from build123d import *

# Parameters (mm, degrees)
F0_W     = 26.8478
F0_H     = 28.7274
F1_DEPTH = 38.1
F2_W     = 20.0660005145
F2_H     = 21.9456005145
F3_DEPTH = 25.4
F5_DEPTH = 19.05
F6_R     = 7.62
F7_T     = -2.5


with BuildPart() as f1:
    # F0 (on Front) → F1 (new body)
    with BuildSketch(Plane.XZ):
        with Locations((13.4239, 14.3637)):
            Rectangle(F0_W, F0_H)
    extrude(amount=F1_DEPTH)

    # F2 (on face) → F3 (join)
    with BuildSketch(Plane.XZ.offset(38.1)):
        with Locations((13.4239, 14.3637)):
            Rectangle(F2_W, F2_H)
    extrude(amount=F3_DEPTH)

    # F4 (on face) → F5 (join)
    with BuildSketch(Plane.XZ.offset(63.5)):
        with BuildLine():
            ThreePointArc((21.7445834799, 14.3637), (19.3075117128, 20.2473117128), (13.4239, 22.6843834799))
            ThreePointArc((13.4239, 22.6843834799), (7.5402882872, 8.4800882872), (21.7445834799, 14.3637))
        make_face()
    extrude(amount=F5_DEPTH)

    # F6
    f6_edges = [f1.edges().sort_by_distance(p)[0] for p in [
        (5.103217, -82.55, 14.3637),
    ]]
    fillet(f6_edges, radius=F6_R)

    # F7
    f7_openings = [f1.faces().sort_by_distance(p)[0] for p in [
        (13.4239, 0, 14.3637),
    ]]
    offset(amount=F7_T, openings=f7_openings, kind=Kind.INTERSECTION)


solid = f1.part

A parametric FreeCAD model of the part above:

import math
import FreeCAD as App
import Part
import Sketcher
Q = App.Units.Quantity


def edges_at(feature, points):
    """Names of the edges that pass closest to the given points."""
    edges = feature.Shape.Edges
    near = lambda p: min(range(len(edges)), key=lambda i: edges[i].distToShape(Part.Vertex(*p))[0])
    return sorted({f"Edge{near(p) + 1}" for p in points})


def faces_at(feature, points):
    """Names of the faces that lie closest to the given points."""
    faces = feature.Shape.Faces
    near = lambda p: min(range(len(faces)), key=lambda i: faces[i].distToShape(Part.Vertex(*p))[0])
    return sorted({f"Face{near(p) + 1}" for p in points})

doc = App.newDocument("Part")
body = doc.addObject("PartDesign::Body", "Body")

# Sketch on XZ plane
sketch1 = doc.addObject("Sketcher::SketchObject", "Sketch")
body.addObject(sketch1)
sketch1.AttachmentSupport = (doc.XZ_Plane, [""])
sketch1.MapMode = "FlatFace"
sketch1.addGeometry(Part.LineSegment(App.Vector(0, 29, 0), App.Vector(0, 0, 0)), False)
sketch1.addGeometry(Part.LineSegment(App.Vector(0, 0, 0), App.Vector(27, 0, 0)), False)
sketch1.addGeometry(Part.LineSegment(App.Vector(27, 0, 0), App.Vector(27, 29, 0)), False)
sketch1.addGeometry(Part.LineSegment(App.Vector(27, 29, 0), App.Vector(0, 29, 0)), False)
sketch1.addConstraint(Sketcher.Constraint("Coincident", 0, 2, 1, 1))
sketch1.addConstraint(Sketcher.Constraint("Coincident", 1, 2, 2, 1))
sketch1.addConstraint(Sketcher.Constraint("Coincident", 2, 2, 3, 1))
sketch1.addConstraint(Sketcher.Constraint("Coincident", 3, 2, 0, 1))
sketch1.addConstraint(Sketcher.Constraint("Vertical", 0))
sketch1.addConstraint(Sketcher.Constraint("Horizontal", 1))
sketch1.addConstraint(Sketcher.Constraint("Vertical", 2))
sketch1.addConstraint(Sketcher.Constraint("Horizontal", 3))
sketch1.addConstraint(Sketcher.Constraint("Coincident", 0, 2, -1, 1))
sketch1.addConstraint(Sketcher.Constraint("DistanceX", 1, 1, 1, 2, Q("1.057 in")))
sketch1.addConstraint(Sketcher.Constraint("DistanceY", 0, 2, 0, 1, Q("1.131 in")))
pad1 = doc.addObject("PartDesign::Pad", "Pad")
body.addObject(pad1)
pad1.Profile = sketch1
pad1.Length = Q("1.5 in")

# Sketch on XZ plane
sketch2 = doc.addObject("Sketcher::SketchObject", "Sketch001")
body.addObject(sketch2)
sketch2.AttachmentSupport = (doc.XZ_Plane, [""])
sketch2.MapMode = "FlatFace"
sketch2.AttachmentOffset = App.Placement(App.Vector(0, 0, 1.5 * 25.4), App.Rotation())
sketch2.addGeometry(Part.LineSegment(App.Vector(3, 25, 0), App.Vector(3, 3, 0)), False)
sketch2.addGeometry(Part.LineSegment(App.Vector(3, 3, 0), App.Vector(23, 3, 0)), False)
sketch2.addGeometry(Part.LineSegment(App.Vector(23, 3, 0), App.Vector(23, 25, 0)), False)
sketch2.addGeometry(Part.LineSegment(App.Vector(23, 25, 0), App.Vector(3, 25, 0)), False)
sketch2.addConstraint(Sketcher.Constraint("Coincident", 0, 2, 1, 1))
sketch2.addConstraint(Sketcher.Constraint("Coincident", 1, 2, 2, 1))
sketch2.addConstraint(Sketcher.Constraint("Coincident", 2, 2, 3, 1))
sketch2.addConstraint(Sketcher.Constraint("Coincident", 3, 2, 0, 1))
sketch2.addConstraint(Sketcher.Constraint("Vertical", 0))
sketch2.addConstraint(Sketcher.Constraint("Horizontal", 1))
sketch2.addConstraint(Sketcher.Constraint("Vertical", 2))
sketch2.addConstraint(Sketcher.Constraint("Horizontal", 3))
sketch2.addConstraint(Sketcher.Constraint("DistanceX", 1, 1, 1, 2, Q("0.79 in")))
sketch2.addConstraint(Sketcher.Constraint("DistanceY", 0, 2, 0, 1, Q("0.864 in")))
sketch2.addConstraint(Sketcher.Constraint("DistanceX", -1, 1, 0, 2, Q("0.1335 in")))
sketch2.addConstraint(Sketcher.Constraint("DistanceY", -1, 1, 0, 2, Q("0.1335 in")))
pad2 = doc.addObject("PartDesign::Pad", "Pad001")
body.addObject(pad2)
pad2.Profile = sketch2
pad2.Length = Q("1 in")

# Sketch on XZ plane
sketch3 = doc.addObject("Sketcher::SketchObject", "Sketch002")
body.addObject(sketch3)
sketch3.AttachmentSupport = (doc.XZ_Plane, [""])
sketch3.MapMode = "FlatFace"
sketch3.AttachmentOffset = App.Placement(App.Vector(0, 0, 2.5 * 25.4), App.Rotation())
sketch3.addGeometry(Part.ArcOfCircle(Part.Circle(App.Vector(13, 14, 0), App.Vector(0, 0, 1), 8), math.radians(0), math.radians(90)), False)
sketch3.addGeometry(Part.ArcOfCircle(Part.Circle(App.Vector(13, 14, 0), App.Vector(0, 0, 1), 8), math.radians(90), math.radians(360)), False)
sketch3.addConstraint(Sketcher.Constraint("Tangent", 0, 1, 1, 2))
sketch3.addConstraint(Sketcher.Constraint("Coincident", 1, 1, 0, 2))
sketch3.addConstraint(Sketcher.Constraint("Horizontal", 1, 3, 0, 1))
sketch3.addConstraint(Sketcher.Constraint("Vertical", 0, 3, 1, 1))
sketch3.addConstraint(Sketcher.Constraint("DistanceX", -1, 1, 0, 3, Q("0.5285 in")))
sketch3.addConstraint(Sketcher.Constraint("DistanceY", -1, 1, 0, 3, Q("0.5655 in")))
sketch3.addConstraint(Sketcher.Constraint("Radius", 0, 8.320683))
pad3 = doc.addObject("PartDesign::Pad", "Pad002")
body.addObject(pad3)
pad3.Profile = sketch3
pad3.Length = Q("0.75 in")
doc.recompute()

fillet = doc.addObject("PartDesign::Fillet", "Fillet")
body.addObject(fillet)
fillet.Base = (pad3, edges_at(pad3, [(7.54, -82.55, 8.48)]))
fillet.Radius = Q("0.3 in")
doc.recompute()

thickness = doc.addObject("PartDesign::Thickness", "Thickness")
body.addObject(thickness)
thickness.Base = (fillet, faces_at(fillet, [(13.424, 0, 14.364)]))
thickness.Value = 2.5
thickness.Reversed = True
thickness.Join = "Intersection"

doc.recompute()
